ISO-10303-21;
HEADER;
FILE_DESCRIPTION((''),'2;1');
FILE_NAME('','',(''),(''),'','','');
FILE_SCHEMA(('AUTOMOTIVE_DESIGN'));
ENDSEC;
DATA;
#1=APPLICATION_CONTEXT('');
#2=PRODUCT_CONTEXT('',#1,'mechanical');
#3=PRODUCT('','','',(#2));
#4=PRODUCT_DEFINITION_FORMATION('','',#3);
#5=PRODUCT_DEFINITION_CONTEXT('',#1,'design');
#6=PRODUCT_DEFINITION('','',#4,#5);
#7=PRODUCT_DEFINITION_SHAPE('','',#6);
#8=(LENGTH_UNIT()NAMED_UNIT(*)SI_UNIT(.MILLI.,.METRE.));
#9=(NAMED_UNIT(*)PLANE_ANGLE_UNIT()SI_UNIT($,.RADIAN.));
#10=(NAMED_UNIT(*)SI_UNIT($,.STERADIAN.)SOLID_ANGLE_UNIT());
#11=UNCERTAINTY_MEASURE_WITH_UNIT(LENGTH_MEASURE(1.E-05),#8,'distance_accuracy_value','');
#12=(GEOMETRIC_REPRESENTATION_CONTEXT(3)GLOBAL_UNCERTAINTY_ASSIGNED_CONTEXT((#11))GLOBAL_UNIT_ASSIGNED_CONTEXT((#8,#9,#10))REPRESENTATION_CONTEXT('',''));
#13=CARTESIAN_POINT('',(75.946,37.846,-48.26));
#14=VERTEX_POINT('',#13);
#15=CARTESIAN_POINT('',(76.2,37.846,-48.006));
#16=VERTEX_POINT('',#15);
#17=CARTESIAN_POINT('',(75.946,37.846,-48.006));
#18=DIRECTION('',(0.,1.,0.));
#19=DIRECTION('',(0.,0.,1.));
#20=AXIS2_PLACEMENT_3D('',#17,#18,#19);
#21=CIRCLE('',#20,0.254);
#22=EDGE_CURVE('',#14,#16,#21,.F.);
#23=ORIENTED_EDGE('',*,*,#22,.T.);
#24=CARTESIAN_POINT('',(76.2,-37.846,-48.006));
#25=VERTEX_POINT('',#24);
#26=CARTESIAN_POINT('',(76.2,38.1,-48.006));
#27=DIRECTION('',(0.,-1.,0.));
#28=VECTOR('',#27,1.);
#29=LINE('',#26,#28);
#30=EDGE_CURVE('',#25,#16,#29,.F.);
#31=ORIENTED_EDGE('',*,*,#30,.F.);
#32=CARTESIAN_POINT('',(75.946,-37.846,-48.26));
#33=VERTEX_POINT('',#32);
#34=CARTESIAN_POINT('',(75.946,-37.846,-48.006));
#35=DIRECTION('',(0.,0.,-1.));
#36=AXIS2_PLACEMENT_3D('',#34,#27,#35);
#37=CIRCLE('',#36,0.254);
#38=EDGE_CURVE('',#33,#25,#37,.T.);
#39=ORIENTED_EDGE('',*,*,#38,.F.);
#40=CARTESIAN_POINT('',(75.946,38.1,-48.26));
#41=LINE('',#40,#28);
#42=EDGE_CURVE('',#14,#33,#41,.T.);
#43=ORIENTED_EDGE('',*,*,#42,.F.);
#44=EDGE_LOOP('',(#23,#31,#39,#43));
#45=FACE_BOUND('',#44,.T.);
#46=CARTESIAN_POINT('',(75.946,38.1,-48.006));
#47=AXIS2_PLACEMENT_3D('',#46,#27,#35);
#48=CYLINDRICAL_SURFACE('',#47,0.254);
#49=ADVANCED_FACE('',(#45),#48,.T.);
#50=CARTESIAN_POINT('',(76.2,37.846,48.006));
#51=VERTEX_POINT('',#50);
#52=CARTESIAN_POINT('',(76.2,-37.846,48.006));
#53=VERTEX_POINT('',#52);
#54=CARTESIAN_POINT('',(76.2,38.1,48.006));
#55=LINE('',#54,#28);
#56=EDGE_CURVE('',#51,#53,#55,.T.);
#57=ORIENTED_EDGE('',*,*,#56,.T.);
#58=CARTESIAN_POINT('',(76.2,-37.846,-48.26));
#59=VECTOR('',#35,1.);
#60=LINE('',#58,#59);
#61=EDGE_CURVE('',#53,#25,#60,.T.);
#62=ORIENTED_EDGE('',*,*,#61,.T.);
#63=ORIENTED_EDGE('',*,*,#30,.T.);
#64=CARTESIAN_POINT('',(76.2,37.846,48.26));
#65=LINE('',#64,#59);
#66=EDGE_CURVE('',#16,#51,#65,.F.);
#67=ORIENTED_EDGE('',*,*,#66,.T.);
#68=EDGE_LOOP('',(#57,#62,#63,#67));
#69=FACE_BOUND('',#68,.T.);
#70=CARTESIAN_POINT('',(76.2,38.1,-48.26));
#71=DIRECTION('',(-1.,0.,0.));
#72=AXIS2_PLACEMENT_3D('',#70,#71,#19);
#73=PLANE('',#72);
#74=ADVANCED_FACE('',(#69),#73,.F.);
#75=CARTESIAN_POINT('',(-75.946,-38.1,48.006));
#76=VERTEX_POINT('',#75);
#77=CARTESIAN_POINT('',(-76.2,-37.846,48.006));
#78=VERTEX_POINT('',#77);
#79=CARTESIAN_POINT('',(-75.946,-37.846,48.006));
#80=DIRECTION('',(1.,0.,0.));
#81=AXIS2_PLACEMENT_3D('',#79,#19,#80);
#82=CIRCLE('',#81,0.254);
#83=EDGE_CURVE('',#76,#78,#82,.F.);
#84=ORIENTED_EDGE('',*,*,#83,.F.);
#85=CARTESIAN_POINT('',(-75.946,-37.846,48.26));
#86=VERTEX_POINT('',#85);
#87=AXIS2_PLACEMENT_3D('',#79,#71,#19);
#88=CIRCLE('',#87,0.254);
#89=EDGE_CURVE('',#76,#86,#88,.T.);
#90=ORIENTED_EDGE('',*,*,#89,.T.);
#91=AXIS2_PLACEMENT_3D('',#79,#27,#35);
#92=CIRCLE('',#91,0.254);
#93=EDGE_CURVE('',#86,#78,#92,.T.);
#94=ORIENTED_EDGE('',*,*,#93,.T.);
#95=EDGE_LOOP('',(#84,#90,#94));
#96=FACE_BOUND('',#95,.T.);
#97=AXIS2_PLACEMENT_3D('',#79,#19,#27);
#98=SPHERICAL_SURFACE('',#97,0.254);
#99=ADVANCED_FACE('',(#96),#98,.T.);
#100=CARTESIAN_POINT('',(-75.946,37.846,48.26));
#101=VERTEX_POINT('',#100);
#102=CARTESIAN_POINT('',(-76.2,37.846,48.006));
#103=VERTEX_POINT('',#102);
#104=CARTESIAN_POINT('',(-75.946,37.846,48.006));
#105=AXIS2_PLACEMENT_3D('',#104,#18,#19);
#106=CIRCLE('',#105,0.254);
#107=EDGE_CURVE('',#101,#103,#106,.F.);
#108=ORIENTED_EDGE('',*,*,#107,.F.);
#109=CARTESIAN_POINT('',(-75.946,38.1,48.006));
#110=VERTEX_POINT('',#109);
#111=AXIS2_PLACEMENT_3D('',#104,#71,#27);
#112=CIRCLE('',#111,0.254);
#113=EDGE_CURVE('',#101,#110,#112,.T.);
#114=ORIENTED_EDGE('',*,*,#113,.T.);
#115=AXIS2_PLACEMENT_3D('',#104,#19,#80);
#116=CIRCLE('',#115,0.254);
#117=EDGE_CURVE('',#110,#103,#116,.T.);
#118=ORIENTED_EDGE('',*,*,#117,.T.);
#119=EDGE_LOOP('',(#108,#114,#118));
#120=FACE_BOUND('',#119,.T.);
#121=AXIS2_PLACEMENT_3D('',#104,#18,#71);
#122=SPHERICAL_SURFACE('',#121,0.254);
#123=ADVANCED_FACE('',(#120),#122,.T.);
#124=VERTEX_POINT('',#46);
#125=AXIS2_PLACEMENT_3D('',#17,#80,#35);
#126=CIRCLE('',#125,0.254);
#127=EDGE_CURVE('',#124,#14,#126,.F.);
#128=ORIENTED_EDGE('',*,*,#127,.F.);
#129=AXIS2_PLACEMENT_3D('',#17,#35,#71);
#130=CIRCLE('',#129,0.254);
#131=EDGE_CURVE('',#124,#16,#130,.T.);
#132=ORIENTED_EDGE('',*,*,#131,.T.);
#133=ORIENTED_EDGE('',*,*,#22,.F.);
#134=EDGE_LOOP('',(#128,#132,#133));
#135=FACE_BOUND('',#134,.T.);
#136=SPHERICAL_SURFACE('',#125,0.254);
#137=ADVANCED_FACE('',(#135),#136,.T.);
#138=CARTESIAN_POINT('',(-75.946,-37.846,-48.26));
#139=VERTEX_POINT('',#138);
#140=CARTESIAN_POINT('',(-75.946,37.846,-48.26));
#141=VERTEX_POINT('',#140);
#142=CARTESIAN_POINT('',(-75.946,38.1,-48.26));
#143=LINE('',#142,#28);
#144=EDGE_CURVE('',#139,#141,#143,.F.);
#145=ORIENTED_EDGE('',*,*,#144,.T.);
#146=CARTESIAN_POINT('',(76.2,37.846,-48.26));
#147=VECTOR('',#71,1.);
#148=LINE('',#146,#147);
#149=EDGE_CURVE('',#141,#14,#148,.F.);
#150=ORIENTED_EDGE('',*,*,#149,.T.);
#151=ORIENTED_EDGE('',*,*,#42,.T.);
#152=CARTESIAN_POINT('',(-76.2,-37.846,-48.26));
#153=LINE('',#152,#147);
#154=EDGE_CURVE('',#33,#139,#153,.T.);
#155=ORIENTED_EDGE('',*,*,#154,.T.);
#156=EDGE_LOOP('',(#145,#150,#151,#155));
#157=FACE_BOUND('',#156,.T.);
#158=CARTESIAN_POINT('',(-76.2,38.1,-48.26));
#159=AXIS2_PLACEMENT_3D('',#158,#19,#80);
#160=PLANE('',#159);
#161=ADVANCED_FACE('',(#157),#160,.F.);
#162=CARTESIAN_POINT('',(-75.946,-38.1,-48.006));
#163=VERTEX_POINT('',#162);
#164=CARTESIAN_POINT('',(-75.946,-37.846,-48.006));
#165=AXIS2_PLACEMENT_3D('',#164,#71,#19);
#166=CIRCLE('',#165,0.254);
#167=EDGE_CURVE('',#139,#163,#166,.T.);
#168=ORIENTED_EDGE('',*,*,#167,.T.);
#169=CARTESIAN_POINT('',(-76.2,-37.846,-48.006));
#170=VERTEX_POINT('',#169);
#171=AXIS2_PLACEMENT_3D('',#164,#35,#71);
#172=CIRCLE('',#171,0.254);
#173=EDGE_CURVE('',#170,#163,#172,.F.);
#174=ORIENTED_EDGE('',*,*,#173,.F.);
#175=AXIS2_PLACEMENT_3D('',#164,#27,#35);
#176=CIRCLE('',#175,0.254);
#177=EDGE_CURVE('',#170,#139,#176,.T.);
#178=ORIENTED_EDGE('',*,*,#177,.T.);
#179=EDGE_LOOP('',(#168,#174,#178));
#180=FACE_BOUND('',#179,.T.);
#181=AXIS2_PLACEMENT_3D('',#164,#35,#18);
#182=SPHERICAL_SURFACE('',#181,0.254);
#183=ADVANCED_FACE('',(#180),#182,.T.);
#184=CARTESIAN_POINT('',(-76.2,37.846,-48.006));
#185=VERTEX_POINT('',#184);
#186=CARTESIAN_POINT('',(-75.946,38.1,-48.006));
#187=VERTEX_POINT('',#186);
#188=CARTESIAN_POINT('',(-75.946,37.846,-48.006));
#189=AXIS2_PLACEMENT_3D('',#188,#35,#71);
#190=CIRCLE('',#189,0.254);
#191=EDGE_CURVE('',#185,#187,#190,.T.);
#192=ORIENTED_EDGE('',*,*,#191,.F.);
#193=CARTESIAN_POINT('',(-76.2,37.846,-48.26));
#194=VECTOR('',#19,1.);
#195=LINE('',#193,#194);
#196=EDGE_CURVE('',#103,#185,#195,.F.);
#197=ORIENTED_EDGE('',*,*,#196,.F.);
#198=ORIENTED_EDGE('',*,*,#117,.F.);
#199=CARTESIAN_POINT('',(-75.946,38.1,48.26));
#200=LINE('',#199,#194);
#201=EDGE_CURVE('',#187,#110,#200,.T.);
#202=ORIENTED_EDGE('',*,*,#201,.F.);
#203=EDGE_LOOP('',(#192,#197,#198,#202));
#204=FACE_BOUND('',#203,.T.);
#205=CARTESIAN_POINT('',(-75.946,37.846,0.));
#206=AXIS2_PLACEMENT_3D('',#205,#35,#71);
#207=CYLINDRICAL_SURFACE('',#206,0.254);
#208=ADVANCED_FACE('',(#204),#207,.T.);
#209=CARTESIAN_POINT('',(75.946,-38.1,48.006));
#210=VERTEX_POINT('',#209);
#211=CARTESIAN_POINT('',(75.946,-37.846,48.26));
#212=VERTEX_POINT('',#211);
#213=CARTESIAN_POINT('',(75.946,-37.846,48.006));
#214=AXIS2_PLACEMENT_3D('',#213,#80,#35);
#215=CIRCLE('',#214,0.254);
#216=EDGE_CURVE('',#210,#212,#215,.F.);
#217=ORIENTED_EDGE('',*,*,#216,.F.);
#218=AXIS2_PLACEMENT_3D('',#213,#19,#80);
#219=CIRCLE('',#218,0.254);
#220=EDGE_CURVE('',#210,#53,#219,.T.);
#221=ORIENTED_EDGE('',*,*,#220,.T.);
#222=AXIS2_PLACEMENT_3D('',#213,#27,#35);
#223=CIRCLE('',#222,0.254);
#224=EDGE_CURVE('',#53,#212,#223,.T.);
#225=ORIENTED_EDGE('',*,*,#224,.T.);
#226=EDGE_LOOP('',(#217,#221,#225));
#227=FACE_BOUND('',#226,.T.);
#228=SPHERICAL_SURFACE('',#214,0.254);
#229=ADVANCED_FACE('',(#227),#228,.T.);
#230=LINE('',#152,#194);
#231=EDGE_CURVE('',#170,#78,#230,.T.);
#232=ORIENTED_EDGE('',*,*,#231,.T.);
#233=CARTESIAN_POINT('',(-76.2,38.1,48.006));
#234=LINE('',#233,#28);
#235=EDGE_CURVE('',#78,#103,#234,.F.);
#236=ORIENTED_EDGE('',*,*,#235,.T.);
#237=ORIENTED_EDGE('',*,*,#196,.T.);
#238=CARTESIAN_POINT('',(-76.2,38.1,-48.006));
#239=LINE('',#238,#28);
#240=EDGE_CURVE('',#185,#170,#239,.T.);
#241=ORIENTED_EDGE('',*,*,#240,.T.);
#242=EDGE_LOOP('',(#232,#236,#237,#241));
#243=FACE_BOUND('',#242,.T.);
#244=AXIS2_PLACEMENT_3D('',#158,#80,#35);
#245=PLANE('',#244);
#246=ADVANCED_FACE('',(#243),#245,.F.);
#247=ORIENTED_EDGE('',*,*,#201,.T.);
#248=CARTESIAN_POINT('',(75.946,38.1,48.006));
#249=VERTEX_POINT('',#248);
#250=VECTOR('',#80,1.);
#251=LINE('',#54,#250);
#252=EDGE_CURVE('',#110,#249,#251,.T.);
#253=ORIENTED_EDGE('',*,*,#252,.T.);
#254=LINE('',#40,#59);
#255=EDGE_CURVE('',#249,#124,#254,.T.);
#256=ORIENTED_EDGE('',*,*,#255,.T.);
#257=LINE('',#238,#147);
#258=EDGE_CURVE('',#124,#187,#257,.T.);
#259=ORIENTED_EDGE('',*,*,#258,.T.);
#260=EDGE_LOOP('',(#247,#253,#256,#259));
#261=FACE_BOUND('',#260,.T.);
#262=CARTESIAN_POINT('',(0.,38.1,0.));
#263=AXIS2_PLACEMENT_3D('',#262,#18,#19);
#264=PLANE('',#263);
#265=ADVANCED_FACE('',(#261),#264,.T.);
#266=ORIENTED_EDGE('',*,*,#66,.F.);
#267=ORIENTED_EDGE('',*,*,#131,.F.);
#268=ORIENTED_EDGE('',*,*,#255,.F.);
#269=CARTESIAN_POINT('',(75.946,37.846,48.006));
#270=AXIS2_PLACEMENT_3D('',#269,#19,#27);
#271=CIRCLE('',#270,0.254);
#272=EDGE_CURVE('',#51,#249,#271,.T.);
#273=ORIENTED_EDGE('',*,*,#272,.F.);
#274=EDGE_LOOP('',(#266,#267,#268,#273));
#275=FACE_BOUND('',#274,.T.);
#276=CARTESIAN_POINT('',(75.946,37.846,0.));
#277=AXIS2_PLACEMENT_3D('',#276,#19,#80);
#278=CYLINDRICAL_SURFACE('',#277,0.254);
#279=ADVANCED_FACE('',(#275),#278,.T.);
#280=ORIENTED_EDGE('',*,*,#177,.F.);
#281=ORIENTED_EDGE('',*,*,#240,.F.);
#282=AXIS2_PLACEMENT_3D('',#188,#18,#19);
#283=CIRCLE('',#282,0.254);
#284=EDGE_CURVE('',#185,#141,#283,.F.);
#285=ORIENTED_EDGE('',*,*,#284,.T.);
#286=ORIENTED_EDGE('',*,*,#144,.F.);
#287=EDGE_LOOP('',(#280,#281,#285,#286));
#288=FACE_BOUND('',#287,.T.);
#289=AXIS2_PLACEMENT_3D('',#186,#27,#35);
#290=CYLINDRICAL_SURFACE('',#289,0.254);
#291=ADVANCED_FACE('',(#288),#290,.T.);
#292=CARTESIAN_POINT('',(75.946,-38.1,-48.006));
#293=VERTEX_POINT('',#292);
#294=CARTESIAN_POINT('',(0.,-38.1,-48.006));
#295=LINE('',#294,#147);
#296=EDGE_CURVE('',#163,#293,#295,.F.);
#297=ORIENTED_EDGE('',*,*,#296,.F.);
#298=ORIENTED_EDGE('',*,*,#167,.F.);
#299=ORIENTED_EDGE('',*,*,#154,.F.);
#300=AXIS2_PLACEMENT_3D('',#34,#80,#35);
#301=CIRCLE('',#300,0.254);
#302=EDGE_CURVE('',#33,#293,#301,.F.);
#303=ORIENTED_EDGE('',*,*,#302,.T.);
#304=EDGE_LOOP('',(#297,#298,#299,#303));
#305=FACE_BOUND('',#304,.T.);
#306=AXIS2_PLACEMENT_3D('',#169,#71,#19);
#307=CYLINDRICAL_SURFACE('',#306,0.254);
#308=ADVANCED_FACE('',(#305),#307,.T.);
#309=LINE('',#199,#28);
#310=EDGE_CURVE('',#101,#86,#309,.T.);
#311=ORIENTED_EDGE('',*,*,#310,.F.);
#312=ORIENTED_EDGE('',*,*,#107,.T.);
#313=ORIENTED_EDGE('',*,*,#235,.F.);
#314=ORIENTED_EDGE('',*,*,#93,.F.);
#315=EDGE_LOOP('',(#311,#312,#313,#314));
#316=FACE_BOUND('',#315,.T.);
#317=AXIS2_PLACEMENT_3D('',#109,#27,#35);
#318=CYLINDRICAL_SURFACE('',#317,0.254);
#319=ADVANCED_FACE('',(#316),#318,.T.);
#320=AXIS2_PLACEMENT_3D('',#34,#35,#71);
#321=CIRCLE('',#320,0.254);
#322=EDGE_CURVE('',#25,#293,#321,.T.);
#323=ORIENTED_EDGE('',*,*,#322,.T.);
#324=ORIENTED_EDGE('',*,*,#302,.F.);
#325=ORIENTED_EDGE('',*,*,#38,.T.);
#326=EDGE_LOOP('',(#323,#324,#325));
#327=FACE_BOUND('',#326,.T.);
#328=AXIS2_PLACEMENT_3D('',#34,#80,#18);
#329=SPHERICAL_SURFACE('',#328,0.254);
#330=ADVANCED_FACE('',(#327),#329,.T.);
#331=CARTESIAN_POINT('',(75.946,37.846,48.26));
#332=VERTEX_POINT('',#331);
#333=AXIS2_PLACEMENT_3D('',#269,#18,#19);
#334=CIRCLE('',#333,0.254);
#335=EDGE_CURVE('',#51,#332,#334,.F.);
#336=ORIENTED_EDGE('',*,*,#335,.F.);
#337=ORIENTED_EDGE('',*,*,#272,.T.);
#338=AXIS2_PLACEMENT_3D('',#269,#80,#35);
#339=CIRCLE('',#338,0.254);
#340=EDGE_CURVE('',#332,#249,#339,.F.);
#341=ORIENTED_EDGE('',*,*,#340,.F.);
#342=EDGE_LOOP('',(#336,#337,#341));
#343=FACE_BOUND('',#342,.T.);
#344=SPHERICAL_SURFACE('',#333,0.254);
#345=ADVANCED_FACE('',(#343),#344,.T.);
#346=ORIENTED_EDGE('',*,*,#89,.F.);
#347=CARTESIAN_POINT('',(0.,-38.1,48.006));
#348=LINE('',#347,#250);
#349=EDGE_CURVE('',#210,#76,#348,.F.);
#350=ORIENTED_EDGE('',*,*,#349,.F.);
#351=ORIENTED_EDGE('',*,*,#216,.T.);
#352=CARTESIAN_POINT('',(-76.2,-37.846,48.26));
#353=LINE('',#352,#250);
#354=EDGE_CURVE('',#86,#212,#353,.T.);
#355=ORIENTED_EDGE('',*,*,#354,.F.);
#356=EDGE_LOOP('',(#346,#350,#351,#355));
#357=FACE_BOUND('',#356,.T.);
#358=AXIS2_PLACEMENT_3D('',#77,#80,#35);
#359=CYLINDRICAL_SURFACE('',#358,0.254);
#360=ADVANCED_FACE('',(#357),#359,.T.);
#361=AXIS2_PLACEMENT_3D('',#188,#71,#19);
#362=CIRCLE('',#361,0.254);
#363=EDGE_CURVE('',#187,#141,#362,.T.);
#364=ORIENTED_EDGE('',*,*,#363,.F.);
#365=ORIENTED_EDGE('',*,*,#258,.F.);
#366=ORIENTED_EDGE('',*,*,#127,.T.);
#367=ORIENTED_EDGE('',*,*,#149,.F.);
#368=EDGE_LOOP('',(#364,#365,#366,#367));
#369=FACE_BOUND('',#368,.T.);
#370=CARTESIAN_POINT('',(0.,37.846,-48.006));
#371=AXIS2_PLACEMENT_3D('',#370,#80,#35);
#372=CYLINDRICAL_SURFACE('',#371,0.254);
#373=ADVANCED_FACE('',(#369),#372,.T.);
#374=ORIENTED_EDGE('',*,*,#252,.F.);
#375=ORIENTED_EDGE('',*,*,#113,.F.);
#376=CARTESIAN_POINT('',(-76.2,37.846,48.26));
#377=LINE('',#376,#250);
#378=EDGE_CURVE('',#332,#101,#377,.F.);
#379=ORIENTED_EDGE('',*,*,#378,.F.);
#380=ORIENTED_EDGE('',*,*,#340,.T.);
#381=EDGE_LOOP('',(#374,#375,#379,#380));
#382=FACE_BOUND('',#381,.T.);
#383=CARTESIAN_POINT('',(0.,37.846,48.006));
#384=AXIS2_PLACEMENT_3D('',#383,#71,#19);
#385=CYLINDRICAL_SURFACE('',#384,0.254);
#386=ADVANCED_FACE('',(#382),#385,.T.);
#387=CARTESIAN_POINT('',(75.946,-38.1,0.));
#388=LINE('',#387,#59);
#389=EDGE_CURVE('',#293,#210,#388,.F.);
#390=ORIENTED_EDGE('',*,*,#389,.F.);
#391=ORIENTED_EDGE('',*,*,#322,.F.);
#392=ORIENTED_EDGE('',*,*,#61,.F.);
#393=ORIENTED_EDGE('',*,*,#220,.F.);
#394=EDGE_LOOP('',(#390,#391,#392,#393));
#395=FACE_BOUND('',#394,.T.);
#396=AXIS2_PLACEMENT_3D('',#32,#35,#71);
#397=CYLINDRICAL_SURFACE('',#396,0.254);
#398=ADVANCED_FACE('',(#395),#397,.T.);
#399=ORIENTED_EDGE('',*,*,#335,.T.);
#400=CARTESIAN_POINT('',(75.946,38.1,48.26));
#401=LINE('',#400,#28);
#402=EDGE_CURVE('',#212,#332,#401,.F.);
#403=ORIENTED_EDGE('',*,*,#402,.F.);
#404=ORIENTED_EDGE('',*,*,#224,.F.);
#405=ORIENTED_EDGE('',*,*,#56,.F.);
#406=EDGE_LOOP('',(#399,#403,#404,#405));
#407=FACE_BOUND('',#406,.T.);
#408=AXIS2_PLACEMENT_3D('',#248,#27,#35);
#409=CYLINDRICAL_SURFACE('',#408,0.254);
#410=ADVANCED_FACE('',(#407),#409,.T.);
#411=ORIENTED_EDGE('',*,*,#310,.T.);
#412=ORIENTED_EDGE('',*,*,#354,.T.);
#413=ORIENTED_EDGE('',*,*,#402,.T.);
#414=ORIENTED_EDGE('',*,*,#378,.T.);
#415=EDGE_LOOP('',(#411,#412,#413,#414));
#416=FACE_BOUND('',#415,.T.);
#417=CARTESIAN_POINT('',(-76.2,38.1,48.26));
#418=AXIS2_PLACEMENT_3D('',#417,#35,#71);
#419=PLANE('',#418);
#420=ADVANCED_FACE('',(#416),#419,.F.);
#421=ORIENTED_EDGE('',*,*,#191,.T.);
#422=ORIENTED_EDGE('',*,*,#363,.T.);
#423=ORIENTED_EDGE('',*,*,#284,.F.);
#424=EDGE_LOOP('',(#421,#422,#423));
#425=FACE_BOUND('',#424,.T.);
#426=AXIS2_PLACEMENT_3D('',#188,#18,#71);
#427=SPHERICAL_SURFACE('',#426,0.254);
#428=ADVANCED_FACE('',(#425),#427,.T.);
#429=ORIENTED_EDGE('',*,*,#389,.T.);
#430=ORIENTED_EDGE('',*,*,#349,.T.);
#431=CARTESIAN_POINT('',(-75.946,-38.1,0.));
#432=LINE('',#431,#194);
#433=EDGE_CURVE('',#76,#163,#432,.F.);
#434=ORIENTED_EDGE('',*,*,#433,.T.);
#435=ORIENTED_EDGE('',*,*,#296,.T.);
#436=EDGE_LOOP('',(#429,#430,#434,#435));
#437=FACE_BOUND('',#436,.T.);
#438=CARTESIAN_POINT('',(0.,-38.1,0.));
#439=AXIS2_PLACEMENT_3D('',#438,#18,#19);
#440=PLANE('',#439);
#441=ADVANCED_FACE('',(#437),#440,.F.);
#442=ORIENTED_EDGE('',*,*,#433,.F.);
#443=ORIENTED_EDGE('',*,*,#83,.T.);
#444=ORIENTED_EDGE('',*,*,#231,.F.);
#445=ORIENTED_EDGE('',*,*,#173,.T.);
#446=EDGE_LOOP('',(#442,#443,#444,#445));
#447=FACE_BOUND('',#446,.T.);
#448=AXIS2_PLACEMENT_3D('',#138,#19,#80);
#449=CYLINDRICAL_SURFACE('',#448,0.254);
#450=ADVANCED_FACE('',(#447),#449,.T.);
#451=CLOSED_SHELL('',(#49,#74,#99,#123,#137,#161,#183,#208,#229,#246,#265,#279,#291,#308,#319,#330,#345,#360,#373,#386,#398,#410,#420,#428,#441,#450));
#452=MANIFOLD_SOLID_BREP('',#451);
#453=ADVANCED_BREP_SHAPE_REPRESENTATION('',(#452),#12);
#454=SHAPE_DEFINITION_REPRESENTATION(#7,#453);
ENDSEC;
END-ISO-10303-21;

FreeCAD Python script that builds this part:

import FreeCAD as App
import Part
import Sketcher
Q = App.Units.Quantity

doc = App.newDocument("Part")
body = doc.addObject("PartDesign::Body", "Body")

# Sketch on XZ plane
sketch1 = body.newObject("Sketcher::SketchObject", "Sketch")
sketch1.AttachmentSupport = (doc.getObject("XZ_Plane"), [""])
sketch1.MapMode = "FlatFace"
sketch1.addGeometry(Part.LineSegment(App.Vector(-76, -48, 0), App.Vector(-76, 48, 0)), False)
sketch1.addGeometry(Part.LineSegment(App.Vector(-76, 48, 0), App.Vector(76, 48, 0)), False)
sketch1.addGeometry(Part.LineSegment(App.Vector(76, 48, 0), App.Vector(76, -48, 0)), False)
sketch1.addGeometry(Part.LineSegment(App.Vector(76, -48, 0), App.Vector(-76, -48, 0)), False)
sketch1.addConstraint(Sketcher.Constraint("Coincident", 0, 2, 1, 1))
sketch1.addConstraint(Sketcher.Constraint("Coincident", 1, 2, 2, 1))
sketch1.addConstraint(Sketcher.Constraint("Coincident", 2, 2, 3, 1))
sketch1.addConstraint(Sketcher.Constraint("Coincident", 3, 2, 0, 1))
sketch1.addConstraint(Sketcher.Constraint("Vertical", 0))
sketch1.addConstraint(Sketcher.Constraint("Horizontal", 1))
sketch1.addConstraint(Sketcher.Constraint("Vertical", 2))
sketch1.addConstraint(Sketcher.Constraint("Horizontal", 3))
sketch1.addConstraint(Sketcher.Constraint("Symmetric", 0, 2, 2, 2, -1, 1))
sketch1.addConstraint(Sketcher.Constraint("DistanceX", 1, 1, 1, 2, Q("6 in")))
sketch1.addConstraint(Sketcher.Constraint("DistanceY", 0, 1, 0, 2, Q("3.8 in")))
pad1 = body.newObject("PartDesign::Pad", "Pad")
pad1.Profile = sketch1
pad1.Length = Q("3 in")
pad1.Midplane = True
doc.recompute()

fillet = body.newObject("PartDesign::Fillet", "Fillet")
fillet.Base = (pad1, ["Edge1"])
fillet.UseAllEdges = True
fillet.Radius = Q("0.01 in")

doc.recompute()
